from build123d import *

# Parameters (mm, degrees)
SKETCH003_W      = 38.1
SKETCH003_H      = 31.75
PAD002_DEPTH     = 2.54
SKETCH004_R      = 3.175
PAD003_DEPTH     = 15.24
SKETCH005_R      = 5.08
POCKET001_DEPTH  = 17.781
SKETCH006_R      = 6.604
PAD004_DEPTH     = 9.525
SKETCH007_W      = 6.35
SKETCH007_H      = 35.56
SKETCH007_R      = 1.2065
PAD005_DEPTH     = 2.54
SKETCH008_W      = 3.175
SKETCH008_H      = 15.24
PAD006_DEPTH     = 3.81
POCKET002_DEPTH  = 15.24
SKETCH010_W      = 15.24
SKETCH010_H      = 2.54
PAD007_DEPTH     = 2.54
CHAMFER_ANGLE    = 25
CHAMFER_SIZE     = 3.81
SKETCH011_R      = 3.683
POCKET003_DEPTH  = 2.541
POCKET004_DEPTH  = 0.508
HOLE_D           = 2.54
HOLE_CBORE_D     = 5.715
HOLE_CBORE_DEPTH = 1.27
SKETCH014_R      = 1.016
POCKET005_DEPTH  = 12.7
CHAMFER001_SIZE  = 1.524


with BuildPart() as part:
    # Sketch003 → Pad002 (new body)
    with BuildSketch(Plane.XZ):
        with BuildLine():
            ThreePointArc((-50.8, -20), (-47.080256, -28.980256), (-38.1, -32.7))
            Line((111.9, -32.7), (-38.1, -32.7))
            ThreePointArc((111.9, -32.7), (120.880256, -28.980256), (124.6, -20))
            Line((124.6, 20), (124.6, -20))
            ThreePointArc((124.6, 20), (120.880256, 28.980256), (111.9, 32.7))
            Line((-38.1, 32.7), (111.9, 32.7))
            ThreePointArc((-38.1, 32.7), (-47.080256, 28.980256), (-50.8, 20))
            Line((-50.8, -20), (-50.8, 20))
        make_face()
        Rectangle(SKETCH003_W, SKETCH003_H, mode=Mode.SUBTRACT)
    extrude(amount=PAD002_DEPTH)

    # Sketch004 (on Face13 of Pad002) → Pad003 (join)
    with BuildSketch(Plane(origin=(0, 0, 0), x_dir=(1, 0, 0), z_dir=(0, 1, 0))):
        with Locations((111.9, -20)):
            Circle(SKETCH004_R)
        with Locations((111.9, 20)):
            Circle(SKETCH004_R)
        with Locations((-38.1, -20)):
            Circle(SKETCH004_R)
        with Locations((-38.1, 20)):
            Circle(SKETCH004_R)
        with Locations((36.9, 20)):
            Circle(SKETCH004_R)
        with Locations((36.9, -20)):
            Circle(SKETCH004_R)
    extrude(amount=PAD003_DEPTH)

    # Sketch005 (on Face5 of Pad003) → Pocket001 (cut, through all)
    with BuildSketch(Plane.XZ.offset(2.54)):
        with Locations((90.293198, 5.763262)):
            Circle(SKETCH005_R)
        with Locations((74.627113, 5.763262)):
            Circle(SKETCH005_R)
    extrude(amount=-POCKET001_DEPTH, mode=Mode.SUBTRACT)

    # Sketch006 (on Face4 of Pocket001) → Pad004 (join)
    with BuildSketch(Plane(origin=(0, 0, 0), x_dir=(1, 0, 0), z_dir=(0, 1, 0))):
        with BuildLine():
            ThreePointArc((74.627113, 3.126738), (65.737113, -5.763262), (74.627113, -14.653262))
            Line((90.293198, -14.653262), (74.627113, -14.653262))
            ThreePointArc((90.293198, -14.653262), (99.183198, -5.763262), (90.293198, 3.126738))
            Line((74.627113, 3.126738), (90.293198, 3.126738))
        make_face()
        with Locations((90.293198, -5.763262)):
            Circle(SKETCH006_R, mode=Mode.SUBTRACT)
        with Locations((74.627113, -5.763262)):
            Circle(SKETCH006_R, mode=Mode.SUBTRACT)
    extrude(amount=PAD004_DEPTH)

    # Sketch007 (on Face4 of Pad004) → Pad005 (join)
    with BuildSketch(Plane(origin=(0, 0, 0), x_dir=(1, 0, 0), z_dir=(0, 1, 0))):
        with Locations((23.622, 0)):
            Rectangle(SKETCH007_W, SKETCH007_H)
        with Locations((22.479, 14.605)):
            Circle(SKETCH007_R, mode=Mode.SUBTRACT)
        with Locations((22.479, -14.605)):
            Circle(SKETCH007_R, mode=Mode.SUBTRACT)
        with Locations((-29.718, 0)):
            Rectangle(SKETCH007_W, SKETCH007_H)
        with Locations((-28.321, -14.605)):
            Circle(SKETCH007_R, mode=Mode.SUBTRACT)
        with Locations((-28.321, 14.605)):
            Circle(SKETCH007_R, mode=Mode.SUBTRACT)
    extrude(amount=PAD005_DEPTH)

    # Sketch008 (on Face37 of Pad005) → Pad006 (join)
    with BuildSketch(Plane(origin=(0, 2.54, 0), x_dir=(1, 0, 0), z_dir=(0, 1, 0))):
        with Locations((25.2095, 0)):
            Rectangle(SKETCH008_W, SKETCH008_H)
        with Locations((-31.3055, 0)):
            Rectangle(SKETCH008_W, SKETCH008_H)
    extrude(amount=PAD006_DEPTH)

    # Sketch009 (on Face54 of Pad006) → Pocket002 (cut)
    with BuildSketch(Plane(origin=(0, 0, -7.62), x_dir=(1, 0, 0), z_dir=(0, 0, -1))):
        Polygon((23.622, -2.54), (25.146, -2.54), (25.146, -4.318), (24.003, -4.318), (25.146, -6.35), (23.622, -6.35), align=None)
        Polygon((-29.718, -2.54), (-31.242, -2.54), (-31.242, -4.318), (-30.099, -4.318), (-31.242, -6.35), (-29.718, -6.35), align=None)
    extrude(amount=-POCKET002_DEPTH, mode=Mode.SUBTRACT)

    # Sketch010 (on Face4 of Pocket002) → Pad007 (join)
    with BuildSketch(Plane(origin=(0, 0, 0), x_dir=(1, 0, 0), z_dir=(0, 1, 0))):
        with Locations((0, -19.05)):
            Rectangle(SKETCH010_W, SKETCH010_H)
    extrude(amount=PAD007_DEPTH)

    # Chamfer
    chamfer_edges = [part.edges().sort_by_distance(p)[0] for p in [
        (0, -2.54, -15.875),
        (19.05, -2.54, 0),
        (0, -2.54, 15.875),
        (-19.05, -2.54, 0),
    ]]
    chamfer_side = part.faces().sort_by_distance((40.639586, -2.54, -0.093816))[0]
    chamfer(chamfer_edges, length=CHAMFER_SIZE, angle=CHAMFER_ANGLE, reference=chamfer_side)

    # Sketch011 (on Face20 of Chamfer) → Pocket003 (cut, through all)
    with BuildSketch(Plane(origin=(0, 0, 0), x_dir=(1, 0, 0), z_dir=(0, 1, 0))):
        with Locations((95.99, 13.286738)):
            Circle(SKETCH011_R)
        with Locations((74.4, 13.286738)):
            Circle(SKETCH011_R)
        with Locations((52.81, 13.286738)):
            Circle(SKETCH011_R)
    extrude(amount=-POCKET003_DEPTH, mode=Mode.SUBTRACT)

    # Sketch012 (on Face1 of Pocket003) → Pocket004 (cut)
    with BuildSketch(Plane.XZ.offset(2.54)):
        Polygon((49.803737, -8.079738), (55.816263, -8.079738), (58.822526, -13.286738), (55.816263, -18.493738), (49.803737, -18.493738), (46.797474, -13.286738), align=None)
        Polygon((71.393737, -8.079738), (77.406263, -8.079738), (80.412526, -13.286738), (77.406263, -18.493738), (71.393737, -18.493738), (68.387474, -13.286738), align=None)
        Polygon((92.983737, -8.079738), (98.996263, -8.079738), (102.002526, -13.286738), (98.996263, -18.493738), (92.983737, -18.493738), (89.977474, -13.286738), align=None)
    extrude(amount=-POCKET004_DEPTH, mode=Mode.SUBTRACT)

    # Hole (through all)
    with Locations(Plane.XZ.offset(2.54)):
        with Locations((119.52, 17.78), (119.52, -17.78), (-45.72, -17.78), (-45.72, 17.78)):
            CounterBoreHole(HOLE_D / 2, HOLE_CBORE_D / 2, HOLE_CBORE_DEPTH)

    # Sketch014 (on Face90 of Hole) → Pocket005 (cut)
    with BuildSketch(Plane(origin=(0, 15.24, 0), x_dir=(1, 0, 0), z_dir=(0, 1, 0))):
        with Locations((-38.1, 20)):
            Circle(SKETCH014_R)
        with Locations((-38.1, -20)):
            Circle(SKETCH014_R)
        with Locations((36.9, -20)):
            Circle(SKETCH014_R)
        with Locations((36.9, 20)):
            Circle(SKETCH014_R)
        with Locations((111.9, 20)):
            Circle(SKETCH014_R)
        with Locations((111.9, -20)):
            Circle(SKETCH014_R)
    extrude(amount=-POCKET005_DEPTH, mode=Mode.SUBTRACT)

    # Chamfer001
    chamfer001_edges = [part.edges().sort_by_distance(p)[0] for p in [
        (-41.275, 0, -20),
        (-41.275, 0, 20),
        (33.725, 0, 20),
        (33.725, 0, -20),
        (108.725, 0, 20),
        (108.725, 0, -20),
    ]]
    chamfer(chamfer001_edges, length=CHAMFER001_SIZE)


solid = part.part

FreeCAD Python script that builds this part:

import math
import FreeCAD as App
import Part
import Sketcher

V = App.Vector
Q = App.Units.Quantity


def edges_at(feature, points):
    """Names of the edges that pass closest to the given points."""
    edges = feature.Shape.Edges
    near = lambda p: min(range(len(edges)), key=lambda i: edges[i].distToShape(Part.Vertex(*p))[0])
    return sorted({f"Edge{near(p) + 1}" for p in points})

doc = App.newDocument("Part")
body = doc.addObject("PartDesign::Body", "Body")

sketch1 = body.newObject("Sketcher::SketchObject", "Sketch")
sketch1.AttachmentSupport = (doc.getObject("XZ_Plane"), [""])
sketch1.MapMode = "FlatFace"
sketch1.addGeometry(Part.ArcOfCircle(Part.Circle(V(-38.1, -20, 0), V(0, 0, 1), 12.7), math.radians(-179.999998), math.radians(-90.000002)), False)
sketch1.addGeometry(Part.LineSegment(V(-38.1, -32.7, 0), V(111.9, -32.7, 0)), False)
sketch1.addGeometry(Part.ArcOfCircle(Part.Circle(V(111.9, -20, 0), V(0, 0, 1), 12.7), math.radians(-89.999998), math.radians(-0.000002)), False)
sketch1.addGeometry(Part.LineSegment(V(124.6, -20, 0), V(124.6, 20, 0)), False)
sketch1.addGeometry(Part.ArcOfCircle(Part.Circle(V(111.9, 20, 0), V(0, 0, 1), 12.7), math.radians(0.000002), math.radians(89.999998)), False)
sketch1.addGeometry(Part.LineSegment(V(111.9, 32.7, 0), V(-38.1, 32.7, 0)), False)
sketch1.addGeometry(Part.ArcOfCircle(Part.Circle(V(-38.1, 20, 0), V(0, 0, 1), 12.7), math.radians(90.000002), math.radians(179.999998)), False)
sketch1.addGeometry(Part.LineSegment(V(-50.8, 20, 0), V(-50.8, -20, 0)), False)
sketch1.addGeometry(Part.LineSegment(V(19.05, -15.875, 0), V(-19.05, -15.875, 0)), False)
sketch1.addGeometry(Part.LineSegment(V(-19.05, -15.875, 0), V(-19.05, 15.875, 0)), False)
sketch1.addGeometry(Part.LineSegment(V(-19.05, 15.875, 0), V(19.05, 15.875, 0)), False)
sketch1.addGeometry(Part.LineSegment(V(19.05, 15.875, 0), V(19.05, -15.875, 0)), False)
sketch1.addConstraint(Sketcher.Constraint("Tangent", 0, 2, 1, 1))
sketch1.addConstraint(Sketcher.Constraint("Tangent", 1, 2, 2, 1))
sketch1.addConstraint(Sketcher.Constraint("Tangent", 2, 2, 3, 1))
sketch1.addConstraint(Sketcher.Constraint("Tangent", 3, 2, 4, 1))
sketch1.addConstraint(Sketcher.Constraint("Tangent", 4, 2, 5, 1))
sketch1.addConstraint(Sketcher.Constraint("Tangent", 5, 2, 6, 1))
sketch1.addConstraint(Sketcher.Constraint("Tangent", 6, 2, 7, 1))
sketch1.addConstraint(Sketcher.Constraint("Tangent", 7, 2, 0, 1))
sketch1.addConstraint(Sketcher.Constraint("Coincident", 8, 2, 9, 1))
sketch1.addConstraint(Sketcher.Constraint("Coincident", 9, 2, 10, 1))
sketch1.addConstraint(Sketcher.Constraint("Coincident", 10, 2, 11, 1))
sketch1.addConstraint(Sketcher.Constraint("Coincident", 11, 2, 8, 1))
sketch1.addConstraint(Sketcher.Constraint("Horizontal", 1))
sketch1.addConstraint(Sketcher.Constraint("Vertical", 3))
sketch1.addConstraint(Sketcher.Constraint("Horizontal", 5))
sketch1.addConstraint(Sketcher.Constraint("Vertical", 7))
sketch1.addConstraint(Sketcher.Constraint("Horizontal", 8))
sketch1.addConstraint(Sketcher.Constraint("Vertical", 9))
sketch1.addConstraint(Sketcher.Constraint("Horizontal", 10))
sketch1.addConstraint(Sketcher.Constraint("Vertical", 11))
sketch1.addConstraint(Sketcher.Constraint("Equal", 0, 2))
sketch1.addConstraint(Sketcher.Constraint("Equal", 2, 4))
sketch1.addConstraint(Sketcher.Constraint("Equal", 4, 6))
sketch1.addConstraint(Sketcher.Constraint("Symmetric", 8, 2, 10, 2, -1, 1))
sketch1.addConstraint(Sketcher.Constraint("Radius", 0, Q("0.5 in")))
sketch1.addConstraint(Sketcher.Constraint("DistanceX", 8, 2, 8, 1, Q("1.5 in")))
sketch1.addConstraint(Sketcher.Constraint("DistanceX", 6, 2, -1, 1, Q("2 in")))
sketch1.addConstraint(Sketcher.Constraint("DistanceY", 9, 1, 9, 2, Q("1.25 in")))
sketch1.addConstraint(Sketcher.Constraint("DistanceX", 1, 1, 1, 2, 150.0))
sketch1.addConstraint(Sketcher.Constraint("DistanceY", 3, 1, 3, 2, 40.0))
sketch1.addConstraint(Sketcher.Constraint("DistanceY", 0, 3, -1, 1, 20.0))
pad1 = body.newObject("PartDesign::Pad", "Pad")
pad1.Profile = sketch1
pad1.Length = Q("0.1 in")

sketch2 = body.newObject("Sketcher::SketchObject", "Sketch001")
sketch2.AttachmentSupport = (doc.getObject("XZ_Plane"), [""])
sketch2.MapMode = "FlatFace"
sketch2.addGeometry(Part.Circle(V(111.9, 20, 0), V(0, 0, 1), 3.175), False)
sketch2.addGeometry(Part.Circle(V(111.9, -20, 0), V(0, 0, 1), 3.175), False)
sketch2.addGeometry(Part.Circle(V(-38.1, 20, 0), V(0, 0, 1), 3.175), False)
sketch2.addGeometry(Part.Circle(V(-38.1, -20, 0), V(0, 0, 1), 3.175), False)
sketch2.addGeometry(Part.Circle(V(36.9, -20, 0), V(0, 0, 1), 3.175), False)
sketch2.addGeometry(Part.Circle(V(36.9, 20, 0), V(0, 0, 1), 3.175), False)
sketch2.addConstraint(Sketcher.Constraint("Equal", 0, 1))
sketch2.addConstraint(Sketcher.Constraint("Equal", 1, 2))
sketch2.addConstraint(Sketcher.Constraint("Equal", 2, 3))
sketch2.addConstraint(Sketcher.Constraint("Equal", 3, 4))
sketch2.addConstraint(Sketcher.Constraint("Equal", 4, 5))
sketch2.addConstraint(Sketcher.Constraint("Symmetric", 0, 3, 1, 3, -1))
sketch2.addConstraint(Sketcher.Constraint("Symmetric", 2, 3, 3, 3, -1))
sketch2.addConstraint(Sketcher.Constraint("Symmetric", 4, 3, 5, 3, -1))
sketch2.addConstraint(Sketcher.Constraint("Horizontal", 0, 3, 2, 3))
sketch2.addConstraint(Sketcher.Constraint("Horizontal", 3, 3, 4, 3))
sketch2.addConstraint(Sketcher.Constraint("Diameter", 0, Q("0.25 in")))
sketch2.addConstraint(Sketcher.Constraint("DistanceX", 2, 3, -1, 1, Q("1.5 in")))
sketch2.addConstraint(Sketcher.Constraint("DistanceX", -1, 1, 0, 3, 111.9))
sketch2.addConstraint(Sketcher.Constraint("DistanceY", -1, 1, 0, 3, 20.0))
sketch2.addConstraint(Sketcher.Constraint("DistanceX", -1, 1, 4, 3, 36.9))
pad2 = body.newObject("PartDesign::Pad", "Pad001")
pad2.Profile = sketch2
pad2.Length = Q("0.6 in")
pad2.Reversed = True

sketch3 = body.newObject("Sketcher::SketchObject", "Sketch002")
sketch3.AttachmentSupport = (doc.getObject("XZ_Plane"), [""])
sketch3.MapMode = "FlatFace"
sketch3.AttachmentOffset = App.Placement(V(0, 0, 0.1 * 25.4), App.Rotation())
sketch3.addGeometry(Part.Circle(V(90.293198, 5.763262, 0), V(0, 0, 1), 5.08), False)
sketch3.addGeometry(Part.Circle(V(74.627113, 5.763262, 0), V(0, 0, 1), 5.08), False)
sketch3.addConstraint(Sketcher.Constraint("Equal", 0, 1))
sketch3.addConstraint(Sketcher.Constraint("Horizontal", 0, 3, 1, 3))
sketch3.addConstraint(Sketcher.Constraint("Diameter", 0, Q("0.4 in")))
sketch3.addConstraint(Sketcher.Constraint("DistanceY", -1, 1, 0, 3, Q("0.2269001 in")))
sketch3.addConstraint(Sketcher.Constraint("DistanceX", -1, 1, 0, 3, 90.293198))
sketch3.addConstraint(Sketcher.Constraint("DistanceX", -1, 1, 1, 3, 74.627113))
pocket1 = body.newObject("PartDesign::Pocket", "Pocket")
pocket1.Profile = sketch3
pocket1.Type = "ThroughAll"

sketch4 = body.newObject("Sketcher::SketchObject", "Sketch003")
sketch4.AttachmentSupport = (doc.getObject("XZ_Plane"), [""])
sketch4.MapMode = "FlatFace"
sketch4.addGeometry(Part.ArcOfCircle(Part.Circle(V(74.627113, 5.763262, 0), V(0, 0, 1), 8.89), math.radians(90), math.radians(270)), False)
sketch4.addGeometry(Part.LineSegment(V(74.627113, 14.653262, 0), V(90.293198, 14.653262, 0)), False)
sketch4.addGeometry(Part.ArcOfCircle(Part.Circle(V(90.293198, 5.763262, 0), V(0, 0, 1), 8.89), math.radians(-90), math.radians(90)), False)
sketch4.addGeometry(Part.LineSegment(V(90.293198, -3.126738, 0), V(74.627113, -3.126738, 0)), False)
sketch4.addGeometry(Part.Circle(V(74.627113, 5.763262, 0), V(0, 0, 1), 6.604), False)
sketch4.addGeometry(Part.Circle(V(90.293198, 5.763262, 0), V(0, 0, 1), 6.604), False)
sketch4.addConstraint(Sketcher.Constraint("Tangent", 0, 1, 1, 1))
sketch4.addConstraint(Sketcher.Constraint("Tangent", 1, 2, 2, 2))
sketch4.addConstraint(Sketcher.Constraint("Tangent", 2, 1, 3, 1))
sketch4.addConstraint(Sketcher.Constraint("Tangent", 3, 2, 0, 2))
sketch4.addConstraint(Sketcher.Constraint("Horizontal", 1))
sketch4.addConstraint(Sketcher.Constraint("Horizontal", 3))
sketch4.addConstraint(Sketcher.Constraint("Coincident", 4, 3, 0, 3))
sketch4.addConstraint(Sketcher.Constraint("Coincident", 5, 3, 2, 3))
sketch4.addConstraint(Sketcher.Constraint("Equal", 4, 5))
sketch4.addConstraint(Sketcher.Constraint("Diameter", 4, Q("0.52 in")))
sketch4.addConstraint(Sketcher.Constraint("Radius", 0, Q("0.35 in")))
sketch4.addConstraint(Sketcher.Constraint("DistanceY", -1, 1, 0, 3, Q("0.2269001 in")))
sketch4.addConstraint(Sketcher.Constraint("DistanceX", -1, 1, 2, 3, 90.293198))
sketch4.addConstraint(Sketcher.Constraint("DistanceX", 1, 1, 1, 2, 15.666085))
pad3 = body.newObject("PartDesign::Pad", "Pad002")
pad3.Profile = sketch4
pad3.Length = Q("0.375 in")
pad3.Reversed = True

sketch5 = body.newObject("Sketcher::SketchObject", "Sketch004")
sketch5.AttachmentSupport = (doc.getObject("XZ_Plane"), [""])
sketch5.MapMode = "FlatFace"
sketch5.addGeometry(Part.LineSegment(V(20.447, -17.78, 0), V(20.447, 17.78, 0)), False)
sketch5.addGeometry(Part.LineSegment(V(20.447, 17.78, 0), V(26.797, 17.78, 0)), False)
sketch5.addGeometry(Part.LineSegment(V(26.797, 17.78, 0), V(26.797, -17.78, 0)), False)
sketch5.addGeometry(Part.LineSegment(V(26.797, -17.78, 0), V(20.447, -17.78, 0)), False)
sketch5.addGeometry(Part.Circle(V(22.479, 14.605, 0), V(0, 0, 1), 1.2065), False)
sketch5.addGeometry(Part.Circle(V(22.479, -14.605, 0), V(0, 0, 1), 1.2065), False)
sketch5.addGeometry(Part.LineSegment(V(-32.893, -17.78, 0), V(-32.893, 17.78, 0)), False)
sketch5.addGeometry(Part.LineSegment(V(-32.893, 17.78, 0), V(-26.543, 17.78, 0)), False)
sketch5.addGeometry(Part.LineSegment(V(-26.543, 17.78, 0), V(-26.543, -17.78, 0)), False)
sketch5.addGeometry(Part.LineSegment(V(-26.543, -17.78, 0), V(-32.893, -17.78, 0)), False)
sketch5.addGeometry(Part.Circle(V(-28.321, 14.605, 0), V(0, 0, 1), 1.2065), False)
sketch5.addGeometry(Part.Circle(V(-28.321, -14.605, 0), V(0, 0, 1), 1.2065), False)
sketch5.addConstraint(Sketcher.Constraint("Coincident", 0, 2, 1, 1))
sketch5.addConstraint(Sketcher.Constraint("Coincident", 1, 2, 2, 1))
sketch5.addConstraint(Sketcher.Constraint("Coincident", 2, 2, 3, 1))
sketch5.addConstraint(Sketcher.Constraint("Coincident", 3, 2, 0, 1))
sketch5.addConstraint(Sketcher.Constraint("Coincident", 6, 2, 7, 1))
sketch5.addConstraint(Sketcher.Constraint("Coincident", 7, 2, 8, 1))
sketch5.addConstraint(Sketcher.Constraint("Coincident", 8, 2, 9, 1))
sketch5.addConstraint(Sketcher.Constraint("Coincident", 9, 2, 6, 1))
sketch5.addConstraint(Sketcher.Constraint("Vertical", 0))
sketch5.addConstraint(Sketcher.Constraint("Horizontal", 1))
sketch5.addConstraint(Sketcher.Constraint("Vertical", 2))
sketch5.addConstraint(Sketcher.Constraint("Horizontal", 3))
sketch5.addConstraint(Sketcher.Constraint("Vertical", 6))
sketch5.addConstraint(Sketcher.Constraint("Horizontal", 7))
sketch5.addConstraint(Sketcher.Constraint("Vertical", 8))
sketch5.addConstraint(Sketcher.Constraint("Horizontal", 9))
sketch5.addConstraint(Sketcher.Constraint("Equal", 4, 5))
sketch5.addConstraint(Sketcher.Constraint("Equal", 5, 10))
sketch5.addConstraint(Sketcher.Constraint("Equal", 10, 11))
sketch5.addConstraint(Sketcher.Constraint("Symmetric", 4, 3, 5, 3, -1))
sketch5.addConstraint(Sketcher.Constraint("Symmetric", 10, 3, 11, 3, -1))
sketch5.addConstraint(Sketcher.Constraint("Horizontal", 4, 3, 10, 3))
sketch5.addConstraint(Sketcher.Constraint("Horizontal", 1, 2, 6, 2))
sketch5.addConstraint(Sketcher.Constraint("Horizontal", 3, 2, 8, 2))
sketch5.addConstraint(Sketcher.Constraint("Equal", 3, 7))
sketch5.addConstraint(Sketcher.Constraint("Diameter", 4, Q("0.095 in")))
sketch5.addConstraint(Sketcher.Constraint("DistanceY", 0, 1, 0, 2, Q("1.4 in")))
sketch5.addConstraint(Sketcher.Constraint("DistanceX", 10, 3, 4, 3, Q("2 in")))
sketch5.addConstraint(Sketcher.Constraint("DistanceX", 1, 1, 1, 2, Q("0.25 in")))
sketch5.addConstraint(Sketcher.Constraint("DistanceY", -1, 1, 0, 2, Q("0.7 in")))
sketch5.addConstraint(Sketcher.Constraint("DistanceX", 6, 2, 0, 2, Q("2.1 in")))
sketch5.addConstraint(Sketcher.Constraint("DistanceY", 5, 3, 4, 3, Q("1.15 in")))
sketch5.addConstraint(Sketcher.Constraint("DistanceX", 0, 2, 4, 3, Q("0.08 in")))
sketch5.addConstraint(Sketcher.Constraint("DistanceX", -1, 1, 4, 3, Q("0.885 in")))
pad4 = body.newObject("PartDesign::Pad", "Pad003")
pad4.Profile = sketch5
pad4.Length = Q("0.1 in")
pad4.Reversed = True

sketch6 = body.newObject("Sketcher::SketchObject", "Sketch005")
sketch6.AttachmentSupport = (doc.getObject("XZ_Plane"), [""])
sketch6.MapMode = "FlatFace"
sketch6.AttachmentOffset = App.Placement(V(0, 0, -0.1 * 25.4), App.Rotation())
sketch6.addGeometry(Part.LineSegment(V(23.622, -7.62, 0), V(23.622, 7.62, 0)), False)
sketch6.addGeometry(Part.LineSegment(V(23.622, 7.62, 0), V(26.797, 7.62, 0)), False)
sketch6.addGeometry(Part.LineSegment(V(26.797, 7.62, 0), V(26.797, -7.62, 0)), False)
sketch6.addGeometry(Part.LineSegment(V(26.797, -7.62, 0), V(23.622, -7.62, 0)), False)
sketch6.addGeometry(Part.LineSegment(V(-32.893, -7.62, 0), V(-32.893, 7.62, 0)), False)
sketch6.addGeometry(Part.LineSegment(V(-32.893, 7.62, 0), V(-29.718, 7.62, 0)), False)
sketch6.addGeometry(Part.LineSegment(V(-29.718, 7.62, 0), V(-29.718, -7.62, 0)), False)
sketch6.addGeometry(Part.LineSegment(V(-29.718, -7.62, 0), V(-32.893, -7.62, 0)), False)
sketch6.addConstraint(Sketcher.Constraint("Coincident", 0, 2, 1, 1))
sketch6.addConstraint(Sketcher.Constraint("Coincident", 1, 2, 2, 1))
sketch6.addConstraint(Sketcher.Constraint("Coincident", 2, 2, 3, 1))
sketch6.addConstraint(Sketcher.Constraint("Coincident", 3, 2, 0, 1))
sketch6.addConstraint(Sketcher.Constraint("Coincident", 4, 2, 5, 1))
sketch6.addConstraint(Sketcher.Constraint("Coincident", 5, 2, 6, 1))
sketch6.addConstraint(Sketcher.Constraint("Coincident", 6, 2, 7, 1))
sketch6.addConstraint(Sketcher.Constraint("Coincident", 7, 2, 4, 1))
sketch6.addConstraint(Sketcher.Constraint("Vertical", 0))
sketch6.addConstraint(Sketcher.Constraint("Horizontal", 1))
sketch6.addConstraint(Sketcher.Constraint("Vertical", 2))
sketch6.addConstraint(Sketcher.Constraint("Horizontal", 3))
sketch6.addConstraint(Sketcher.Constraint("Vertical", 4))
sketch6.addConstraint(Sketcher.Constraint("Horizontal", 5))
sketch6.addConstraint(Sketcher.Constraint("Vertical", 6))
sketch6.addConstraint(Sketcher.Constraint("Horizontal", 7))
sketch6.addConstraint(Sketcher.Constraint("Horizontal", 1, 2, 4, 2))
sketch6.addConstraint(Sketcher.Constraint("Horizontal", 3, 2, 6, 2))
sketch6.addConstraint(Sketcher.Constraint("Equal", 3, 5))
sketch6.addConstraint(Sketcher.Constraint("DistanceY", 0, 1, 0, 2, Q("0.6 in")))
sketch6.addConstraint(Sketcher.Constraint("DistanceY", -1, 1, 0, 2, Q("0.3 in")))
sketch6.addConstraint(Sketcher.Constraint("DistanceX", 5, 2, 0, 2, Q("2.1 in")))
sketch6.addConstraint(Sketcher.Constraint("DistanceX", 1, 1, 1, 2, Q("0.125 in")))
sketch6.addConstraint(Sketcher.Constraint("DistanceX", -1, 1, 0, 2, Q("0.93 in")))
pad5 = body.newObject("PartDesign::Pad", "Pad004")
pad5.Profile = sketch6
pad5.Length = Q("0.15 in")
pad5.Reversed = True

sketch7 = body.newObject("Sketcher::SketchObject", "Sketch006")
sketch7.AttachmentSupport = (doc.getObject("XY_Plane"), [""])
sketch7.MapMode = "FlatFace"
sketch7.AttachmentOffset = App.Placement(V(0, 0, -0.3 * 25.4), App.Rotation())
sketch7.addGeometry(Part.LineSegment(V(25.146, 2.54, 0), V(23.622, 2.54, 0)), False)
sketch7.addGeometry(Part.LineSegment(V(23.622, 2.54, 0), V(23.622, 6.35, 0)), False)
sketch7.addGeometry(Part.LineSegment(V(23.622, 6.35, 0), V(25.146, 6.35, 0)), False)
sketch7.addGeometry(Part.LineSegment(V(25.146, 6.35, 0), V(24.003, 4.318, 0)), False)
sketch7.addGeometry(Part.LineSegment(V(24.003, 4.318, 0), V(25.146, 4.318, 0)), False)
sketch7.addGeometry(Part.LineSegment(V(25.146, 4.318, 0), V(25.146, 2.54, 0)), False)
sketch7.addGeometry(Part.LineSegment(V(-29.718, 2.54, 0), V(-31.242, 2.54, 0)), False)
sketch7.addGeometry(Part.LineSegment(V(-31.242, 2.54, 0), V(-31.242, 4.318, 0)), False)
sketch7.addGeometry(Part.LineSegment(V(-31.242, 4.318, 0), V(-30.099, 4.318, 0)), False)
sketch7.addGeometry(Part.LineSegment(V(-30.099, 4.318, 0), V(-31.242, 6.35, 0)), False)
sketch7.addGeometry(Part.LineSegment(V(-31.242, 6.35, 0), V(-29.718, 6.35, 0)), False)
sketch7.addGeometry(Part.LineSegment(V(-29.718, 6.35, 0), V(-29.718, 2.54, 0)), False)
sketch7.addConstraint(Sketcher.Constraint("Coincident", 0, 2, 1, 1))
sketch7.addConstraint(Sketcher.Constraint("Coincident", 1, 2, 2, 1))
sketch7.addConstraint(Sketcher.Constraint("Coincident", 2, 2, 3, 1))
sketch7.addConstraint(Sketcher.Constraint("Coincident", 3, 2, 4, 1))
sketch7.addConstraint(Sketcher.Constraint("Coincident", 4, 2, 5, 1))
sketch7.addConstraint(Sketcher.Constraint("Coincident", 5, 2, 0, 1))
sketch7.addConstraint(Sketcher.Constraint("Coincident", 6, 2, 7, 1))
sketch7.addConstraint(Sketcher.Constraint("Coincident", 7, 2, 8, 1))
sketch7.addConstraint(Sketcher.Constraint("Coincident", 8, 2, 9, 1))
sketch7.addConstraint(Sketcher.Constraint("Coincident", 9, 2, 10, 1))
sketch7.addConstraint(Sketcher.Constraint("Coincident", 10, 2, 11, 1))
sketch7.addConstraint(Sketcher.Constraint("Coincident", 11, 2, 6, 1))
sketch7.addConstraint(Sketcher.Constraint("Horizontal", 0))
sketch7.addConstraint(Sketcher.Constraint("Vertical", 1))
sketch7.addConstraint(Sketcher.Constraint("Horizontal", 2))
sketch7.addConstraint(Sketcher.Constraint("Horizontal", 4))
sketch7.addConstraint(Sketcher.Constraint("Vertical", 5))
sketch7.addConstraint(Sketcher.Constraint("Horizontal", 6))
sketch7.addConstraint(Sketcher.Constraint("Vertical", 7))
sketch7.addConstraint(Sketcher.Constraint("Horizontal", 8))
sketch7.addConstraint(Sketcher.Constraint("Horizontal", 10))
sketch7.addConstraint(Sketcher.Constraint("Vertical", 11))
sketch7.addConstraint(Sketcher.Constraint("Horizontal", 5, 2, 6, 2))
sketch7.addConstraint(Sketcher.Constraint("Horizontal", 4, 2, 7, 2))
sketch7.addConstraint(Sketcher.Constraint("Horizontal", 2, 2, 9, 2))
sketch7.addConstraint(Sketcher.Constraint("Vertical", 2, 2, 4, 2))
sketch7.addConstraint(Sketcher.Constraint("Vertical", 7, 2, 9, 2))
sketch7.addConstraint(Sketcher.Constraint("Equal", 2, 6))
sketch7.addConstraint(Sketcher.Constraint("Equal", 4, 8))
sketch7.addConstraint(Sketcher.Constraint("DistanceX", 0, 2, 0, 1, Q("0.06 in")))
sketch7.addConstraint(Sketcher.Constraint("DistanceY", 1, 1, 1, 2, Q("0.15 in")))
sketch7.addConstraint(Sketcher.Constraint("DistanceY", 5, 2, 5, 1, Q("0.07 in")))
sketch7.addConstraint(Sketcher.Constraint("DistanceY", -1, 1, 0, 2, Q("0.1 in")))
sketch7.addConstraint(Sketcher.Constraint("DistanceX", 10, 2, 1, 2, Q("2.1 in")))
sketch7.addConstraint(Sketcher.Constraint("DistanceX", 4, 1, 4, 2, Q("0.045 in")))
sketch7.addConstraint(Sketcher.Constraint("DistanceX", -1, 1, 0, 2, Q("0.93 in")))
pocket2 = body.newObject("PartDesign::Pocket", "Pocket001")
pocket2.Profile = sketch7
pocket2.Length = Q("0.6 in")
pocket2.Reversed = True

sketch8 = body.newObject("Sketcher::SketchObject", "Sketch007")
sketch8.AttachmentSupport = (doc.getObject("XZ_Plane"), [""])
sketch8.MapMode = "FlatFace"
sketch8.addGeometry(Part.LineSegment(V(-7.62, 17.78, 0), V(-7.62, 20.32, 0)), False)
sketch8.addGeometry(Part.LineSegment(V(-7.62, 20.32, 0), V(7.62, 20.32, 0)), False)
sketch8.addGeometry(Part.LineSegment(V(7.62, 20.32, 0), V(7.62, 17.78, 0)), False)
sketch8.addGeometry(Part.LineSegment(V(7.62, 17.78, 0), V(-7.62, 17.78, 0)), False)
sketch8.addConstraint(Sketcher.Constraint("Coincident", 0, 2, 1, 1))
sketch8.addConstraint(Sketcher.Constraint("Coincident", 1, 2, 2, 1))
sketch8.addConstraint(Sketcher.Constraint("Coincident", 2, 2, 3, 1))
sketch8.addConstraint(Sketcher.Constraint("Coincident", 3, 2, 0, 1))
sketch8.addConstraint(Sketcher.Constraint("Vertical", 0))
sketch8.addConstraint(Sketcher.Constraint("Horizontal", 1))
sketch8.addConstraint(Sketcher.Constraint("Vertical", 2))
sketch8.addConstraint(Sketcher.Constraint("Horizontal", 3))
sketch8.addConstraint(Sketcher.Constraint("DistanceX", 1, 1, 1, 2, Q("0.6 in")))
sketch8.addConstraint(Sketcher.Constraint("DistanceY", 0, 1, 0, 2, Q("0.1 in")))
sketch8.addConstraint(Sketcher.Constraint("DistanceX", 0, 2, -1, 1, Q("0.3 in")))
sketch8.addConstraint(Sketcher.Constraint("DistanceY", -1, 1, 0, 2, Q("0.8 in")))
pad6 = body.newObject("PartDesign::Pad", "Pad005")
pad6.Profile = sketch8
pad6.Length = Q("0.1 in")
pad6.Reversed = True
doc.recompute()

chamfer = body.newObject("PartDesign::Chamfer", "Chamfer")
chamfer.Base = (pad6, edges_at(pad6, [
    (0, -2.54, -15.875),
    (19.05, -2.54, 0),
    (0, -2.54, 15.875),
    (-19.05, -2.54, 0),
]))
chamfer.ChamferType = "Distance and Angle"
chamfer.Size = Q("0.15 in")
chamfer.Angle = 25

sketch9 = body.newObject("Sketcher::SketchObject", "Sketch008")
sketch9.AttachmentSupport = (doc.getObject("XZ_Plane"), [""])
sketch9.MapMode = "FlatFace"
sketch9.addGeometry(Part.Circle(V(95.99, -13.286738, 0), V(0, 0, 1), 3.683), False)
sketch9.addGeometry(Part.Circle(V(74.4, -13.286738, 0), V(0, 0, 1), 3.683), False)
sketch9.addGeometry(Part.Circle(V(52.81, -13.286738, 0), V(0, 0, 1), 3.683), False)
sketch9.addConstraint(Sketcher.Constraint("Equal", 0, 1))
sketch9.addConstraint(Sketcher.Constraint("Equal", 1, 2))
sketch9.addConstraint(Sketcher.Constraint("Horizontal", 0, 3, 1, 3))
sketch9.addConstraint(Sketcher.Constraint("Horizontal", 1, 3, 2, 3))
sketch9.addConstraint(Sketcher.Constraint("Diameter", 0, Q("0.29 in")))
sketch9.addConstraint(Sketcher.Constraint("DistanceX", 2, 3, 0, 3, Q("1.7 in")))
sketch9.addConstraint(Sketcher.Constraint("DistanceX", 1, 3, 0, 3, Q("0.85 in")))
sketch9.addConstraint(Sketcher.Constraint("DistanceY", 0, 3, -1, 1, Q("0.5230999 in")))
sketch9.addConstraint(Sketcher.Constraint("DistanceX", -1, 1, 0, 3, 95.99))
pocket3 = body.newObject("PartDesign::Pocket", "Pocket002")
pocket3.Profile = sketch9
pocket3.Type = "ThroughAll"
pocket3.Reversed = True

sketch10 = body.newObject("Sketcher::SketchObject", "Sketch009")
sketch10.AttachmentSupport = (doc.getObject("XZ_Plane"), [""])
sketch10.MapMode = "FlatFace"
sketch10.AttachmentOffset = App.Placement(V(0, 0, 0.1 * 25.4), App.Rotation())
sketch10.addGeometry(Part.LineSegment(V(55.816263, -8.079738, 0), V(49.803737, -8.079738, 0)), False)
sketch10.addGeometry(Part.LineSegment(V(49.803737, -8.079738, 0), V(46.797474, -13.286738, 0)), False)
sketch10.addGeometry(Part.LineSegment(V(46.797474, -13.286738, 0), V(49.803737, -18.493738, 0)), False)
sketch10.addGeometry(Part.LineSegment(V(49.803737, -18.493738, 0), V(55.816263, -18.493738, 0)), False)
sketch10.addGeometry(Part.LineSegment(V(55.816263, -18.493738, 0), V(58.822526, -13.286738, 0)), False)
sketch10.addGeometry(Part.LineSegment(V(58.822526, -13.286738, 0), V(55.816263, -8.079738, 0)), False)
sketch10.addGeometry(Part.LineSegment(V(77.406263, -8.079738, 0), V(71.393737, -8.079738, 0)), False)
sketch10.addGeometry(Part.LineSegment(V(71.393737, -8.079738, 0), V(68.387474, -13.286738, 0)), False)
sketch10.addGeometry(Part.LineSegment(V(68.387474, -13.286738, 0), V(71.393737, -18.493738, 0)), False)
sketch10.addGeometry(Part.LineSegment(V(71.393737, -18.493738, 0), V(77.406263, -18.493738, 0)), False)
sketch10.addGeometry(Part.LineSegment(V(77.406263, -18.493738, 0), V(80.412526, -13.286738, 0)), False)
sketch10.addGeometry(Part.LineSegment(V(80.412526, -13.286738, 0), V(77.406263, -8.079738, 0)), False)
sketch10.addGeometry(Part.LineSegment(V(98.996263, -8.079738, 0), V(92.983737, -8.079738, 0)), False)
sketch10.addGeometry(Part.LineSegment(V(92.983737, -8.079738, 0), V(89.977474, -13.286738, 0)), False)
sketch10.addGeometry(Part.LineSegment(V(89.977474, -13.286738, 0), V(92.983737, -18.493738, 0)), False)
sketch10.addGeometry(Part.LineSegment(V(92.983737, -18.493738, 0), V(98.996263, -18.493738, 0)), False)
sketch10.addGeometry(Part.LineSegment(V(98.996263, -18.493738, 0), V(102.002526, -13.286738, 0)), False)
sketch10.addGeometry(Part.LineSegment(V(102.002526, -13.286738, 0), V(98.996263, -8.079738, 0)), False)
sketch10.addConstraint(Sketcher.Constraint("Coincident", 0, 2, 1, 1))
sketch10.addConstraint(Sketcher.Constraint("Coincident", 1, 2, 2, 1))
sketch10.addConstraint(Sketcher.Constraint("Coincident", 2, 2, 3, 1))
sketch10.addConstraint(Sketcher.Constraint("Coincident", 3, 2, 4, 1))
sketch10.addConstraint(Sketcher.Constraint("Coincident", 4, 2, 5, 1))
sketch10.addConstraint(Sketcher.Constraint("Coincident", 5, 2, 0, 1))
sketch10.addConstraint(Sketcher.Constraint("Coincident", 6, 2, 7, 1))
sketch10.addConstraint(Sketcher.Constraint("Coincident", 7, 2, 8, 1))
sketch10.addConstraint(Sketcher.Constraint("Coincident", 8, 2, 9, 1))
sketch10.addConstraint(Sketcher.Constraint("Coincident", 9, 2, 10, 1))
sketch10.addConstraint(Sketcher.Constraint("Coincident", 10, 2, 11, 1))
sketch10.addConstraint(Sketcher.Constraint("Coincident", 11, 2, 6, 1))
sketch10.addConstraint(Sketcher.Constraint("Coincident", 12, 2, 13, 1))
sketch10.addConstraint(Sketcher.Constraint("Coincident", 13, 2, 14, 1))
sketch10.addConstraint(Sketcher.Constraint("Coincident", 14, 2, 15, 1))
sketch10.addConstraint(Sketcher.Constraint("Coincident", 15, 2, 16, 1))
sketch10.addConstraint(Sketcher.Constraint("Coincident", 16, 2, 17, 1))
sketch10.addConstraint(Sketcher.Constraint("Coincident", 17, 2, 12, 1))
sketch10.addConstraint(Sketcher.Constraint("Horizontal", 0))
sketch10.addConstraint(Sketcher.Constraint("Horizontal", 3))
sketch10.addConstraint(Sketcher.Constraint("Horizontal", 6))
sketch10.addConstraint(Sketcher.Constraint("Horizontal", 9))
sketch10.addConstraint(Sketcher.Constraint("Horizontal", 12))
sketch10.addConstraint(Sketcher.Constraint("Horizontal", 15))
sketch10.addConstraint(Sketcher.Constraint("Parallel", 1, 4))
sketch10.addConstraint(Sketcher.Constraint("Parallel", 2, 5))
sketch10.addConstraint(Sketcher.Constraint("Parallel", 4, 7))
sketch10.addConstraint(Sketcher.Constraint("Parallel", 5, 8))
sketch10.addConstraint(Sketcher.Constraint("Parallel", 7, 10))
sketch10.addConstraint(Sketcher.Constraint("Parallel", 8, 11))
sketch10.addConstraint(Sketcher.Constraint("Parallel", 10, 13))
sketch10.addConstraint(Sketcher.Constraint("Parallel", 11, 14))
sketch10.addConstraint(Sketcher.Constraint("Parallel", 13, 16))
sketch10.addConstraint(Sketcher.Constraint("Parallel", 14, 17))
sketch10.addConstraint(Sketcher.Constraint("Horizontal", 1, 2, 4, 2))
sketch10.addConstraint(Sketcher.Constraint("Horizontal", 5, 2, 6, 2))
sketch10.addConstraint(Sketcher.Constraint("Horizontal", 4, 2, 7, 2))
sketch10.addConstraint(Sketcher.Constraint("Horizontal", 3, 2, 8, 2))
sketch10.addConstraint(Sketcher.Constraint("Horizontal", 7, 2, 10, 2))
sketch10.addConstraint(Sketcher.Constraint("Horizontal", 11, 2, 12, 2))
sketch10.addConstraint(Sketcher.Constraint("Horizontal", 10, 2, 13, 2))
sketch10.addConstraint(Sketcher.Constraint("Horizontal", 9, 2, 14, 2))
sketch10.addConstraint(Sketcher.Constraint("Horizontal", 13, 2, 16, 2))
sketch10.addConstraint(Sketcher.Constraint("Vertical", 0, 2, 2, 2))
sketch10.addConstraint(Sketcher.Constraint("Vertical", 3, 2, 5, 2))
sketch10.addConstraint(Sketcher.Constraint("Equal", 3, 6))
sketch10.addConstraint(Sketcher.Constraint("Equal", 9, 12))
sketch10.addConstraint(Sketcher.Constraint("Angle", 1, Q("-120.000001 deg")))
sketch10.addConstraint(Sketcher.Constraint("DistanceY", 2, 2, 0, 2, Q("0.41 in")))
sketch10.addConstraint(Sketcher.Constraint("DistanceX", 0, 2, 6, 2, Q("0.85 in")))
sketch10.addConstraint(Sketcher.Constraint("DistanceX", 6, 2, 12, 2, Q("0.85 in")))
sketch10.addConstraint(Sketcher.Constraint("DistanceY", 0, 2, -1, 1, Q("0.3180999 in")))
sketch10.addConstraint(Sketcher.Constraint("DistanceX", 0, 2, 0, 1, 6.012526))
sketch10.addConstraint(Sketcher.Constraint("DistanceX", -1, 1, 0, 2, 49.803737))
pocket4 = body.newObject("PartDesign::Pocket", "Pocket003")
pocket4.Profile = sketch10
pocket4.Length = Q("0.02 in")

sketch11 = body.newObject("Sketcher::SketchObject", "Sketch010")
sketch11.AttachmentSupport = (doc.getObject("XZ_Plane"), [""])
sketch11.MapMode = "FlatFace"
sketch11.AttachmentOffset = App.Placement(V(0, 0, 0.1 * 25.4), App.Rotation())
sketch11.addGeometry(Part.Circle(V(119.52, 17.78, 0), V(0, 0, 1), 1.27), False)
sketch11.addGeometry(Part.Circle(V(119.52, -17.78, 0), V(0, 0, 1), 1.27), False)
sketch11.addGeometry(Part.Circle(V(-45.72, -17.78, 0), V(0, 0, 1), 1.27), False)
sketch11.addGeometry(Part.Circle(V(-45.72, 17.78, 0), V(0, 0, 1), 1.27), False)
sketch11.addConstraint(Sketcher.Constraint("Equal", 0, 1))
sketch11.addConstraint(Sketcher.Constraint("Equal", 1, 2))
sketch11.addConstraint(Sketcher.Constraint("Equal", 2, 3))
sketch11.addConstraint(Sketcher.Constraint("Symmetric", 0, 3, 1, 3, -1))
sketch11.addConstraint(Sketcher.Constraint("Symmetric", 2, 3, 3, 3, -1))
sketch11.addConstraint(Sketcher.Constraint("Horizontal", 1, 3, 2, 3))
sketch11.addConstraint(Sketcher.Constraint("Diameter", 0, Q("0.1 in")))
sketch11.addConstraint(Sketcher.Constraint("DistanceY", -1, 1, 0, 3, Q("0.7 in")))
sketch11.addConstraint(Sketcher.Constraint("DistanceX", 2, 3, -1, 1, Q("1.8 in")))
sketch11.addConstraint(Sketcher.Constraint("DistanceX", -1, 1, 0, 3, 119.52))
doc.recompute()
hole = body.newObject("PartDesign::Hole", "Hole")
hole.Profile = sketch11
hole.ThreadType = "None"
hole.Diameter = Q("0.1 in")
hole.DepthType = "ThroughAll"
hole.HoleCutType = "Counterbore"
hole.HoleCutDiameter = Q("0.225 in")
hole.HoleCutDepth = Q("0.05 in")

sketch12 = body.newObject("Sketcher::SketchObject", "Sketch011")
sketch12.AttachmentSupport = (doc.getObject("XZ_Plane"), [""])
sketch12.MapMode = "FlatFace"
sketch12.AttachmentOffset = App.Placement(V(0, 0, -0.6 * 25.4), App.Rotation())
sketch12.addGeometry(Part.Circle(V(-38.1, -20, 0), V(0, 0, 1), 1.016), False)
sketch12.addGeometry(Part.Circle(V(-38.1, 20, 0), V(0, 0, 1), 1.016), False)
sketch12.addGeometry(Part.Circle(V(36.9, 20, 0), V(0, 0, 1), 1.016), False)
sketch12.addGeometry(Part.Circle(V(36.9, -20, 0), V(0, 0, 1), 1.016), False)
sketch12.addGeometry(Part.Circle(V(111.9, -20, 0), V(0, 0, 1), 1.016), False)
sketch12.addGeometry(Part.Circle(V(111.9, 20, 0), V(0, 0, 1), 1.016), False)
sketch12.addConstraint(Sketcher.Constraint("Equal", 0, 1))
sketch12.addConstraint(Sketcher.Constraint("Equal", 1, 2))
sketch12.addConstraint(Sketcher.Constraint("Equal", 2, 3))
sketch12.addConstraint(Sketcher.Constraint("Equal", 3, 4))
sketch12.addConstraint(Sketcher.Constraint("Equal", 4, 5))
sketch12.addConstraint(Sketcher.Constraint("Symmetric", 0, 3, 1, 3, -1))
sketch12.addConstraint(Sketcher.Constraint("Symmetric", 2, 3, 3, 3, -1))
sketch12.addConstraint(Sketcher.Constraint("Symmetric", 4, 3, 5, 3, -1))
sketch12.addConstraint(Sketcher.Constraint("Horizontal", 1, 3, 2, 3))
sketch12.addConstraint(Sketcher.Constraint("Horizontal", 3, 3, 4, 3))
sketch12.addConstraint(Sketcher.Constraint("Diameter", 0, Q("0.08 in")))
sketch12.addConstraint(Sketcher.Constraint("DistanceX", 0, 3, -1, 1, Q("1.5 in")))
sketch12.addConstraint(Sketcher.Constraint("DistanceY", 0, 3, -1, 1, 20.0))
sketch12.addConstraint(Sketcher.Constraint("DistanceX", -1, 1, 2, 3, 36.9))
sketch12.addConstraint(Sketcher.Constraint("DistanceX", -1, 1, 4, 3, 111.9))
pocket5 = body.newObject("PartDesign::Pocket", "Pocket004")
pocket5.Profile = sketch12
pocket5.Length = Q("0.5 in")
pocket5.Reversed = True
doc.recompute()

chamfer2 = body.newObject("PartDesign::Chamfer", "Chamfer001")
chamfer2.Base = (pocket5, edges_at(pocket5, [
    (-41.275, 0, -20),
    (-41.275, 0, 20),
    (33.725, 0, 20),
    (33.725, 0, -20),
    (108.725, 0, 20),
    (108.725, 0, -20),
]))
chamfer2.Size = Q("0.06 in")

doc.recompute()
